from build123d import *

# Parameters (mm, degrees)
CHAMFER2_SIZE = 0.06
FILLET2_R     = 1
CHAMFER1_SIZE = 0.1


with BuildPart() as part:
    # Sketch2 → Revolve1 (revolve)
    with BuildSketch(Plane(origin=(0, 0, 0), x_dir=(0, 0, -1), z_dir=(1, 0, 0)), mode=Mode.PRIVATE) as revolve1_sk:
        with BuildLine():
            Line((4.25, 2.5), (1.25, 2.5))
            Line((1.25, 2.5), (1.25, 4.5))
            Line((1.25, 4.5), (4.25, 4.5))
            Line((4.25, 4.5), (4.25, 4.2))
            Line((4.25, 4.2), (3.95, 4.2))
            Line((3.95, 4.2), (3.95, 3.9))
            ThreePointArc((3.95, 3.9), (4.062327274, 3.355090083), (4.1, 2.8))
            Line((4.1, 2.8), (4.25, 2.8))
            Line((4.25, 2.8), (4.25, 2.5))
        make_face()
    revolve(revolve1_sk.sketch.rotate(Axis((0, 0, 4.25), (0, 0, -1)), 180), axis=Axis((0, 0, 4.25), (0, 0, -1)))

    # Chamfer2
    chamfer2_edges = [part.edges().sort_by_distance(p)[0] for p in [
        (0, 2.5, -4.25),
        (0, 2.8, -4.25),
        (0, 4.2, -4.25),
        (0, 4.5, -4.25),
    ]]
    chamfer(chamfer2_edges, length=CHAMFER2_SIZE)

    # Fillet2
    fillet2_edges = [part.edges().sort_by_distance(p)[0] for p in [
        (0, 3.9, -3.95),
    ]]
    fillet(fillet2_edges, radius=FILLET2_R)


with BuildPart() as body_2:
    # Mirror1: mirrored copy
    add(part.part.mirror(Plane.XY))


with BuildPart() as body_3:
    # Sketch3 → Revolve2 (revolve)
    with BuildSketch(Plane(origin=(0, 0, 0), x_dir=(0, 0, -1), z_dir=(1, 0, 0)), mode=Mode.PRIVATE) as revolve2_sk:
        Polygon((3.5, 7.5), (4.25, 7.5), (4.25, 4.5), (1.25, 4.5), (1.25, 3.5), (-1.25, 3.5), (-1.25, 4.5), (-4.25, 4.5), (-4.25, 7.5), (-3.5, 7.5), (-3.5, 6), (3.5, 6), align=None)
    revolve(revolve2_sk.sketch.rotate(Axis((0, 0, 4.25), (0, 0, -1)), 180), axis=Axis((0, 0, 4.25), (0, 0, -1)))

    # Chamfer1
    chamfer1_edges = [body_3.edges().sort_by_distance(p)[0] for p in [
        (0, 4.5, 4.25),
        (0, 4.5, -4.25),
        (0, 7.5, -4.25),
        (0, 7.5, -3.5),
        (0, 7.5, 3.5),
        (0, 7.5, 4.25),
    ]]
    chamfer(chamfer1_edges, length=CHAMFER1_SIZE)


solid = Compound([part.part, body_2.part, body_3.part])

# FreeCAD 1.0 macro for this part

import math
import FreeCAD as App
import Part
import Sketcher


def edges_at(feature, points):
    """Names of the edges that pass closest to the given points."""
    edges = feature.Shape.Edges
    near = lambda p: min(range(len(edges)), key=lambda i: edges[i].distToShape(Part.Vertex(*p))[0])
    return sorted({f"Edge{near(p) + 1}" for p in points})


def add_polygon(sketch, points):
    """Adds a closed chain of lines whose ends are joined by coincident constraints."""
    first, n = sketch.GeometryCount, len(points)
    for a, b in zip(points, points[1:] + points[:1]):
        sketch.addGeometry(Part.LineSegment(App.Vector(*a, 0), App.Vector(*b, 0)), False)
    for i in range(n):
        sketch.addConstraint(Sketcher.Constraint("Coincident", first + i, 2, first + (i + 1) % n, 1))

doc = App.newDocument("Part")
body = doc.addObject("PartDesign::Body", "Body")

# Sketch on YZ plane
sketch1 = doc.addObject("Sketcher::SketchObject", "Sketch")
body.addObject(sketch1)
sketch1.AttachmentSupport = (doc.YZ_Plane, [""])
sketch1.MapMode = "FlatFace"
sketch1.addGeometry([
    Part.LineSegment(App.Vector(2.5, -1.25, 0), App.Vector(2.5, -4.25, 0)),  # 0
    Part.LineSegment(App.Vector(2.5, -4.25, 0), App.Vector(2.8, -4.25, 0)),  # 1
    Part.LineSegment(App.Vector(2.8, -4.25, 0), App.Vector(2.8, -4.1, 0)),  # 2
    Part.ArcOfCircle(Part.Circle(App.Vector(2.8, 0.008333, 0), App.Vector(0, 0, 1), 4.108333), math.radians(-90), math.radians(-74.469668)),  # 3
    Part.LineSegment(App.Vector(3.9, -3.95, 0), App.Vector(4.2, -3.95, 0)),  # 4
    Part.LineSegment(App.Vector(4.2, -3.95, 0), App.Vector(4.2, -4.25, 0)),  # 5
    Part.LineSegment(App.Vector(4.2, -4.25, 0), App.Vector(4.5, -4.25, 0)),  # 6
    Part.LineSegment(App.Vector(4.5, -4.25, 0), App.Vector(4.5, -1.25, 0)),  # 7
    Part.LineSegment(App.Vector(4.5, -1.25, 0), App.Vector(2.5, -1.25, 0)),  # 8
], False)
sketch1.addConstraint([
    Sketcher.Constraint("Coincident", 0, 2, 1, 1),
    Sketcher.Constraint("Coincident", 1, 2, 2, 1),
    Sketcher.Constraint("Coincident", 2, 2, 3, 1),
    Sketcher.Constraint("Coincident", 3, 2, 4, 1),
    Sketcher.Constraint("Coincident", 4, 2, 5, 1),
    Sketcher.Constraint("Coincident", 5, 2, 6, 1),
    Sketcher.Constraint("Coincident", 6, 2, 7, 1),
    Sketcher.Constraint("Coincident", 7, 2, 8, 1),
    Sketcher.Constraint("Coincident", 8, 2, 0, 1),
    Sketcher.Constraint("Vertical", 0),
    Sketcher.Constraint("Horizontal", 1),
    Sketcher.Constraint("Vertical", 2),
    Sketcher.Constraint("Horizontal", 4),
    Sketcher.Constraint("Vertical", 5),
    Sketcher.Constraint("Horizontal", 6),
    Sketcher.Constraint("Vertical", 7),
    Sketcher.Constraint("Horizontal", 8),
    Sketcher.Constraint("Horizontal", 1, 2, 5, 2),
    Sketcher.Constraint("Vertical", 3, 3, 1, 2),
    Sketcher.Constraint("Equal", 1, 4),
    Sketcher.Constraint("Equal", 4, 6),
    Sketcher.Constraint("Equal", 6, 5),
    Sketcher.Constraint("DistanceX", 8, 2, 8, 1, 2.0),
    Sketcher.Constraint("DistanceY", 0, 2, 0, 1, 3.0),
    Sketcher.Constraint("DistanceX", 1, 1, 1, 2, 0.3),
    Sketcher.Constraint("DistanceY", 2, 1, 2, 2, 0.15),
    Sketcher.Constraint("DistanceX", -1, 1, 3, 3, 2.8),
    Sketcher.Constraint("DistanceY", 2, 2, -1, 1, 4.1),
])
revolution = doc.addObject("PartDesign::Revolution", "Revolution")
body.addObject(revolution)
revolution.Profile = sketch1
revolution.ReferenceAxis = (sketch1, ["V_Axis"])
revolution.Angle = 360
doc.recompute()

chamfer = doc.addObject("PartDesign::Chamfer", "Chamfer")
body.addObject(chamfer)
chamfer.Base = (revolution, edges_at(revolution, [
    (0, 2.5, -4.25),
    (0, 2.8, -4.25),
    (0, 4.2, -4.25),
    (0, 4.5, -4.25),
]))
chamfer.Size = 0.06
doc.recompute()

fillet = doc.addObject("PartDesign::Fillet", "Fillet")
body.addObject(fillet)
fillet.Base = (chamfer, edges_at(chamfer, [(0, 3.9, -3.95)]))
fillet.Radius = 1
body2 = doc.addObject("PartDesign::Body", "Body001")
doc.recompute()

mirroring = doc.addObject("Part::Mirroring", "Mirroring")
mirroring.Source = body
mirroring.Base = App.Vector(0, 0, 0)
mirroring.Normal = App.Vector(0, 0, 1)
body2.BaseFeature = mirroring
doc.recompute()
body3 = doc.addObject("PartDesign::Body", "Body002")

# Sketch on YZ plane
sketch2 = doc.addObject("Sketcher::SketchObject", "Sketch001")
body3.addObject(sketch2)
sketch2.AttachmentSupport = (doc.getObject("YZ_Plane002"), [""])
sketch2.MapMode = "FlatFace"
add_polygon(sketch2, [(7.5, -4.25), (7.5, -3.5), (6, -3.5), (6, 3.5), (7.5, 3.5), (7.5, 4.25), (4.5, 4.25), (4.5, 1.25), (3.5, 1.25), (3.5, -1.25), (4.5, -1.25), (4.5, -4.25)])  # lines 0-11
sketch2.addConstraint([
    Sketcher.Constraint("Vertical", 0),
    Sketcher.Constraint("Horizontal", 1),
    Sketcher.Constraint("Vertical", 2),
    Sketcher.Constraint("Horizontal", 3),
    Sketcher.Constraint("Vertical", 4),
    Sketcher.Constraint("Horizontal", 5),
    Sketcher.Constraint("Vertical", 6),
    Sketcher.Constraint("Horizontal", 7),
    Sketcher.Constraint("Vertical", 8),
    Sketcher.Constraint("Horizontal", 9),
    Sketcher.Constraint("Vertical", 10),
    Sketcher.Constraint("Horizontal", 11),
    Sketcher.Constraint("Symmetric", 0, 2, 3, 2, -1),
    Sketcher.Constraint("Symmetric", 6, 2, 9, 2, -1),
    Sketcher.Constraint("Equal", 0, 4),
    Sketcher.Constraint("Equal", 11, 6),
    Sketcher.Constraint("DistanceX", 5, 2, 5, 1, 3.0),
    Sketcher.Constraint("DistanceX", 7, 2, 7, 1, 1.0),
    Sketcher.Constraint("DistanceY", 2, 1, 2, 2, 7.0),
    Sketcher.Constraint("DistanceX", 1, 2, 1, 1, 1.5),
    Sketcher.Constraint("DistanceY", 8, 2, 8, 1, 2.5),
    Sketcher.Constraint("DistanceX", -1, 1, 1, 2, 6.0),
])
revolution2 = doc.addObject("PartDesign::Revolution", "Revolution001")
body3.addObject(revolution2)
revolution2.Profile = sketch2
revolution2.ReferenceAxis = (sketch2, ["V_Axis"])
revolution2.Angle = 360
doc.recompute()

chamfer2 = doc.addObject("PartDesign::Chamfer", "Chamfer001")
body3.addObject(chamfer2)
chamfer2.Base = (revolution2, edges_at(revolution2, [
    (0, 4.5, 4.25),
    (0, 4.5, -4.25),
    (0, 7.5, -4.25),
    (0, 7.5, -3.5),
    (0, 7.5, 3.5),
    (0, 7.5, 4.25),
]))
chamfer2.Size = 0.1
mirroring.Visibility = False

doc.recompute()
